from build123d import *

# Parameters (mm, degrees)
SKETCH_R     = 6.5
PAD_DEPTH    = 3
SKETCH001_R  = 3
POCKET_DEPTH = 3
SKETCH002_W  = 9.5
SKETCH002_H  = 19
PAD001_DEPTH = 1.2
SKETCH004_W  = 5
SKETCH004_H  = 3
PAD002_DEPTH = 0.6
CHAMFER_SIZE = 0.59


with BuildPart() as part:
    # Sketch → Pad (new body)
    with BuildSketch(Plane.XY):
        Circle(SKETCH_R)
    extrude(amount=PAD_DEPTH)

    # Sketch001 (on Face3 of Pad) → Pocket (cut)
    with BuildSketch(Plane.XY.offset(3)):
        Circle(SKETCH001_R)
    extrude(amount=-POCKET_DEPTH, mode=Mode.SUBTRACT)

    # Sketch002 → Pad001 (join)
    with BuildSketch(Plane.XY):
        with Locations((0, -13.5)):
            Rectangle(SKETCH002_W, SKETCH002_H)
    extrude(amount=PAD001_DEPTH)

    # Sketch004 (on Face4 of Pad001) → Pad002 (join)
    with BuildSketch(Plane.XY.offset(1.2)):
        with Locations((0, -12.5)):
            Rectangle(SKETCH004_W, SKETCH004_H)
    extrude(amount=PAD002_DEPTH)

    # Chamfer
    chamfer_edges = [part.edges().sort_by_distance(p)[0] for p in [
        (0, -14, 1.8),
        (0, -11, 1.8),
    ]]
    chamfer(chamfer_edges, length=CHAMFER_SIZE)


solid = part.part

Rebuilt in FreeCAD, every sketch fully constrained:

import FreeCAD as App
import Part
import Sketcher
from FreeCAD import Vector


def edges_at(feature, points):
    """Names of the edges that pass closest to the given points."""
    edges = feature.Shape.Edges
    near = lambda p: min(range(len(edges)), key=lambda i: edges[i].distToShape(Part.Vertex(*p))[0])
    return sorted({f"Edge{near(p) + 1}" for p in points})

doc = App.newDocument("Part")
body = doc.addObject("PartDesign::Body", "Body")

# Sketch on XY plane
sketch1 = doc.addObject("Sketcher::SketchObject", "Sketch")
body.addObject(sketch1)
sketch1.AttachmentSupport = (doc.XY_Plane, [""])
sketch1.MapMode = "FlatFace"
sketch1.addGeometry(Part.Circle(Vector(0, 0, 0), Vector(0, 0, 1), 6.5), False)
sketch1.addConstraint([
    Sketcher.Constraint("Coincident", 0, 3, -1, 1),
    Sketcher.Constraint("Diameter", 0, 13.0),
])
pad1 = doc.addObject("PartDesign::Pad", "Pad")
body.addObject(pad1)
pad1.Profile = sketch1
pad1.Length = 3

# Sketch on XY plane
sketch2 = doc.addObject("Sketcher::SketchObject", "Sketch001")
body.addObject(sketch2)
sketch2.AttachmentSupport = (doc.XY_Plane, [""])
sketch2.MapMode = "FlatFace"
sketch2.AttachmentOffset = App.Placement(Vector(0, 0, 3), App.Rotation())
sketch2.addGeometry(Part.Circle(Vector(0, 0, 0), Vector(0, 0, 1), 3), False)
sketch2.addConstraint([
    Sketcher.Constraint("Coincident", 0, 3, -1, 1),
    Sketcher.Constraint("Diameter", 0, 6.0),
])
pocket1 = doc.addObject("PartDesign::Pocket", "Pocket")
body.addObject(pocket1)
pocket1.Profile = sketch2
pocket1.Length = 3

# Sketch on XY plane
sketch3 = doc.addObject("Sketcher::SketchObject", "Sketch002")
body.addObject(sketch3)
sketch3.AttachmentSupport = (doc.XY_Plane, [""])
sketch3.MapMode = "FlatFace"
sketch3.addGeometry([
    Part.LineSegment(Vector(-4.75, -4, 0), Vector(-4.75, -23, 0)),
    Part.LineSegment(Vector(-4.75, -23, 0), Vector(4.75, -23, 0)),
    Part.LineSegment(Vector(4.75, -23, 0), Vector(4.75, -4, 0)),
    Part.LineSegment(Vector(4.75, -4, 0), Vector(-4.75, -4, 0)),
], False)
sketch3.addConstraint([
    Sketcher.Constraint("Coincident", 0, 2, 1, 1),
    Sketcher.Constraint("Coincident", 1, 2, 2, 1),
    Sketcher.Constraint("Coincident", 2, 2, 3, 1),
    Sketcher.Constraint("Coincident", 3, 2, 0, 1),
    Sketcher.Constraint("Vertical", 0),
    Sketcher.Constraint("Horizontal", 1),
    Sketcher.Constraint("Vertical", 2),
    Sketcher.Constraint("Horizontal", 3),
    Sketcher.Constraint("DistanceY", 0, 2, 0, 1, 19.0),
    Sketcher.Constraint("DistanceX", 1, 1, 1, 2, 9.5),
    Sketcher.Constraint("DistanceY", 0, 2, -1, 1, 23.0),
    Sketcher.Constraint("DistanceX", 0, 2, -1, 1, 4.75),
])
pad2 = doc.addObject("PartDesign::Pad", "Pad001")
body.addObject(pad2)
pad2.Profile = sketch3
pad2.Length = 1.2

# Sketch on XY plane
sketch4 = doc.addObject("Sketcher::SketchObject", "Sketch003")
body.addObject(sketch4)
sketch4.AttachmentSupport = (doc.XY_Plane, [""])
sketch4.MapMode = "FlatFace"
sketch4.AttachmentOffset = App.Placement(Vector(0, 0, 1.2), App.Rotation())
sketch4.addGeometry([
    Part.LineSegment(Vector(-2.5, -11, 0), Vector(-2.5, -14, 0)),
    Part.LineSegment(Vector(-2.5, -14, 0), Vector(2.5, -14, 0)),
    Part.LineSegment(Vector(2.5, -14, 0), Vector(2.5, -11, 0)),
    Part.LineSegment(Vector(2.5, -11, 0), Vector(-2.5, -11, 0)),
], False)
sketch4.addConstraint([
    Sketcher.Constraint("Coincident", 0, 2, 1, 1),
    Sketcher.Constraint("Coincident", 1, 2, 2, 1),
    Sketcher.Constraint("Coincident", 2, 2, 3, 1),
    Sketcher.Constraint("Coincident", 3, 2, 0, 1),
    Sketcher.Constraint("Vertical", 0),
    Sketcher.Constraint("Horizontal", 1),
    Sketcher.Constraint("Vertical", 2),
    Sketcher.Constraint("Horizontal", 3),
    Sketcher.Constraint("DistanceX", 1, 1, 1, 2, 5.0),
    Sketcher.Constraint("DistanceY", 0, 2, 0, 1, 3.0),
    Sketcher.Constraint("DistanceY", 0, 2, -1, 1, 14.0),
    Sketcher.Constraint("DistanceX", 0, 2, -1, 1, 2.5),
])
pad3 = doc.addObject("PartDesign::Pad", "Pad002")
body.addObject(pad3)
pad3.Profile = sketch4
pad3.Length = 0.6
doc.recompute()

chamfer = doc.addObject("PartDesign::Chamfer", "Chamfer")
body.addObject(chamfer)
chamfer.Base = (pad3, edges_at(pad3, [(0, -14, 1.8), (0, -11, 1.8)]))
chamfer.Size = 0.59

doc.recompute()
